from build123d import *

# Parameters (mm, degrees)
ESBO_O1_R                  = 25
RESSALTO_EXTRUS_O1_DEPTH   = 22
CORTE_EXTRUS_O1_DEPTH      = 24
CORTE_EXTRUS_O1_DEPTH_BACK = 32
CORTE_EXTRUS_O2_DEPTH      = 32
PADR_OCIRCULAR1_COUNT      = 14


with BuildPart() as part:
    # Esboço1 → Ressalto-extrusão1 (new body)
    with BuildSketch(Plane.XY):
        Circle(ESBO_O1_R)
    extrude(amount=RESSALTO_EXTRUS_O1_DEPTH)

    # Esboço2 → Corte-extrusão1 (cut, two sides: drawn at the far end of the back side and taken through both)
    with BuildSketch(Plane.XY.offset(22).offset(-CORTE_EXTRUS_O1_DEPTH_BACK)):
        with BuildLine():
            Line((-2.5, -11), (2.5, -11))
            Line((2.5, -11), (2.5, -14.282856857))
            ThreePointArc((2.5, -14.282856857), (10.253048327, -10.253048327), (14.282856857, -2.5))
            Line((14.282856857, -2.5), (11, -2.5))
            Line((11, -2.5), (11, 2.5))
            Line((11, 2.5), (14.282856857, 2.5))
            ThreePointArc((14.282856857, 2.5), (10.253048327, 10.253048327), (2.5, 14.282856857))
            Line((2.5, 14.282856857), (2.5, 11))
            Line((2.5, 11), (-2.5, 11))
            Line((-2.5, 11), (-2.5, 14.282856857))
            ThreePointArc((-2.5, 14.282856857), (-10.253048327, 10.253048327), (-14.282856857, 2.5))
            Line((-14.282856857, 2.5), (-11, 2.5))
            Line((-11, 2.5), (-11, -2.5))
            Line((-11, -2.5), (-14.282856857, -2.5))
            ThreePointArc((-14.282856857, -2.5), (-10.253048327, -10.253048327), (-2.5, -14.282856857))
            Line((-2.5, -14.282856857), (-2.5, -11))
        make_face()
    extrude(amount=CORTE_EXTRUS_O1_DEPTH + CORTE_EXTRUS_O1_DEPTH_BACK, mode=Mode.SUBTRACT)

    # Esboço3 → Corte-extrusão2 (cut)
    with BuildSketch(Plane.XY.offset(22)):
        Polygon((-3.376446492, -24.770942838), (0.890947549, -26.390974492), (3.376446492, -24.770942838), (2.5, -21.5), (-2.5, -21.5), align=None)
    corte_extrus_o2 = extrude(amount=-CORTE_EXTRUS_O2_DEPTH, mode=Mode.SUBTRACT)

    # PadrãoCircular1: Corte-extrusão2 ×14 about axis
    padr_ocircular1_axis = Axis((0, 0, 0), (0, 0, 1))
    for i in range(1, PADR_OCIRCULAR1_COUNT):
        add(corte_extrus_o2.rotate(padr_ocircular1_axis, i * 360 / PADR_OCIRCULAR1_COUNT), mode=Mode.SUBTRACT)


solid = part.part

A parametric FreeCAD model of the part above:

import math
import FreeCAD as App
import Part
import Sketcher
Q = App.Units.Quantity


def add_polygon(sketch, points):
    """Adds a closed chain of lines whose ends are joined by coincident constraints."""
    first, n = sketch.GeometryCount, len(points)
    for a, b in zip(points, points[1:] + points[:1]):
        sketch.addGeometry(Part.LineSegment(App.Vector(*a, 0), App.Vector(*b, 0)), False)
    for i in range(n):
        sketch.addConstraint(Sketcher.Constraint("Coincident", first + i, 2, first + (i + 1) % n, 1))

doc = App.newDocument("Part")
body = doc.addObject("PartDesign::Body", "Body")

# Sketch on XY plane
sketch1 = body.newObject("Sketcher::SketchObject", "Sketch")
sketch1.AttachmentSupport = (doc.getObject("XY_Plane"), [""])
sketch1.MapMode = "FlatFace"
sketch1.addGeometry(Part.Circle(App.Vector(0, 0, 0), App.Vector(0, 0, 1), 25), False)
sketch1.addConstraint(Sketcher.Constraint("Coincident", 0, 3, -1, 1))
sketch1.addConstraint(Sketcher.Constraint("Diameter", 0, 50.0))
pad1 = body.newObject("PartDesign::Pad", "Pad")
pad1.Profile = sketch1
pad1.Length = 22

# Sketch on XY plane
sketch2 = body.newObject("Sketcher::SketchObject", "Sketch001")
sketch2.AttachmentSupport = (doc.getObject("XY_Plane"), [""])
sketch2.MapMode = "FlatFace"
sketch2.AttachmentOffset = App.Placement(App.Vector(0, 0, 22), App.Rotation())
sketch2.addGeometry(Part.LineSegment(App.Vector(-2.5, -11, 0), App.Vector(2.5, -11, 0)), False)
sketch2.addGeometry(Part.LineSegment(App.Vector(2.5, -11, 0), App.Vector(2.5, -14.3, 0)), False)
sketch2.addGeometry(Part.ArcOfCircle(Part.Circle(App.Vector(0, 0, 0), App.Vector(0, 0, 1), 14.5), math.radians(-80), math.radians(-10)), False)
sketch2.addGeometry(Part.LineSegment(App.Vector(14.3, -2.5, 0), App.Vector(11, -2.5, 0)), False)
sketch2.addGeometry(Part.LineSegment(App.Vector(11, -2.5, 0), App.Vector(11, 2.5, 0)), False)
sketch2.addGeometry(Part.LineSegment(App.Vector(11, 2.5, 0), App.Vector(14.3, 2.5, 0)), False)
sketch2.addGeometry(Part.ArcOfCircle(Part.Circle(App.Vector(0, 0, 0), App.Vector(0, 0, 1), 14.5), math.radians(10), math.radians(80)), False)
sketch2.addGeometry(Part.LineSegment(App.Vector(2.5, 14.3, 0), App.Vector(2.5, 11, 0)), False)
sketch2.addGeometry(Part.LineSegment(App.Vector(2.5, 11, 0), App.Vector(-2.5, 11, 0)), False)
sketch2.addGeometry(Part.LineSegment(App.Vector(-2.5, 11, 0), App.Vector(-2.5, 14.3, 0)), False)
sketch2.addGeometry(Part.ArcOfCircle(Part.Circle(App.Vector(0, 0, 0), App.Vector(0, 0, 1), 14.5), math.radians(100), math.radians(170)), False)
sketch2.addGeometry(Part.LineSegment(App.Vector(-14.3, 2.5, 0), App.Vector(-11, 2.5, 0)), False)
sketch2.addGeometry(Part.LineSegment(App.Vector(-11, 2.5, 0), App.Vector(-11, -2.5, 0)), False)
sketch2.addGeometry(Part.LineSegment(App.Vector(-11, -2.5, 0), App.Vector(-14.3, -2.5, 0)), False)
sketch2.addGeometry(Part.ArcOfCircle(Part.Circle(App.Vector(0, 0, 0), App.Vector(0, 0, 1), 14.5), math.radians(-170), math.radians(-100)), False)
sketch2.addGeometry(Part.LineSegment(App.Vector(-2.5, -14.3, 0), App.Vector(-2.5, -11, 0)), False)
sketch2.addConstraint(Sketcher.Constraint("Coincident", 0, 2, 1, 1))
sketch2.addConstraint(Sketcher.Constraint("Coincident", 1, 2, 2, 1))
sketch2.addConstraint(Sketcher.Constraint("Coincident", 2, 2, 3, 1))
sketch2.addConstraint(Sketcher.Constraint("Coincident", 3, 2, 4, 1))
sketch2.addConstraint(Sketcher.Constraint("Coincident", 4, 2, 5, 1))
sketch2.addConstraint(Sketcher.Constraint("Coincident", 5, 2, 6, 1))
sketch2.addConstraint(Sketcher.Constraint("Coincident", 6, 2, 7, 1))
sketch2.addConstraint(Sketcher.Constraint("Coincident", 7, 2, 8, 1))
sketch2.addConstraint(Sketcher.Constraint("Coincident", 8, 2, 9, 1))
sketch2.addConstraint(Sketcher.Constraint("Coincident", 9, 2, 10, 1))
sketch2.addConstraint(Sketcher.Constraint("Coincident", 10, 2, 11, 1))
sketch2.addConstraint(Sketcher.Constraint("Coincident", 11, 2, 12, 1))
sketch2.addConstraint(Sketcher.Constraint("Coincident", 12, 2, 13, 1))
sketch2.addConstraint(Sketcher.Constraint("Coincident", 13, 2, 14, 1))
sketch2.addConstraint(Sketcher.Constraint("Coincident", 14, 2, 15, 1))
sketch2.addConstraint(Sketcher.Constraint("Coincident", 15, 2, 0, 1))
sketch2.addConstraint(Sketcher.Constraint("Horizontal", 0))
sketch2.addConstraint(Sketcher.Constraint("Vertical", 1))
sketch2.addConstraint(Sketcher.Constraint("Horizontal", 3))
sketch2.addConstraint(Sketcher.Constraint("Vertical", 4))
sketch2.addConstraint(Sketcher.Constraint("Horizontal", 5))
sketch2.addConstraint(Sketcher.Constraint("Vertical", 7))
sketch2.addConstraint(Sketcher.Constraint("Horizontal", 8))
sketch2.addConstraint(Sketcher.Constraint("Vertical", 9))
sketch2.addConstraint(Sketcher.Constraint("Horizontal", 11))
sketch2.addConstraint(Sketcher.Constraint("Vertical", 12))
sketch2.addConstraint(Sketcher.Constraint("Horizontal", 13))
sketch2.addConstraint(Sketcher.Constraint("Vertical", 15))
sketch2.addConstraint(Sketcher.Constraint("Coincident", 2, 3, -1, 1))
sketch2.addConstraint(Sketcher.Constraint("Coincident", 6, 3, -1, 1))
sketch2.addConstraint(Sketcher.Constraint("Coincident", 10, 3, -1, 1))
sketch2.addConstraint(Sketcher.Constraint("Coincident", 14, 3, -1, 1))
sketch2.addConstraint(Sketcher.Constraint("Equal", 2, 6))
sketch2.addConstraint(Sketcher.Constraint("Equal", 6, 10))
sketch2.addConstraint(Sketcher.Constraint("Equal", 10, 14))
sketch2.addConstraint(Sketcher.Constraint("Symmetric", 0, 2, 8, 2, -1, 1))
sketch2.addConstraint(Sketcher.Constraint("Symmetric", 3, 2, 11, 2, -1, 1))
sketch2.addConstraint(Sketcher.Constraint("Horizontal", 6, 2, 9, 2))
sketch2.addConstraint(Sketcher.Constraint("Horizontal", 5, 2, 10, 2))
sketch2.addConstraint(Sketcher.Constraint("Horizontal", 3, 2, 12, 2))
sketch2.addConstraint(Sketcher.Constraint("Horizontal", 1, 2, 14, 2))
sketch2.addConstraint(Sketcher.Constraint("Equal", 13, 1))
sketch2.addConstraint(Sketcher.Constraint("Equal", 8, 4))
sketch2.addConstraint(Sketcher.Constraint("Radius", 2, 14.5))
sketch2.addConstraint(Sketcher.Constraint("DistanceX", 0, 1, 0, 2, 5.0))
sketch2.addConstraint(Sketcher.Constraint("DistanceY", 0, 2, -1, 1, 11.0))
pocket1 = body.newObject("PartDesign::Pocket", "Pocket")
pocket1.Profile = sketch2
pocket1.Type = "ThroughAll"
pocket1.Midplane = True

# Sketch on XY plane
sketch3 = body.newObject("Sketcher::SketchObject", "Sketch002")
sketch3.AttachmentSupport = (doc.getObject("XY_Plane"), [""])
sketch3.MapMode = "FlatFace"
sketch3.AttachmentOffset = App.Placement(App.Vector(0, 0, 22), App.Rotation())
add_polygon(sketch3, [(-3.4, -24.8), (0.9, -26.4), (3.4, -24.8), (2.5, -21.5), (-2.5, -21.5)])  # lines 0-4
sketch3.addConstraint(Sketcher.Constraint("Horizontal", 3))
sketch3.addConstraint(Sketcher.Constraint("Symmetric", 1, 2, 4, 2, -2))
sketch3.addConstraint(Sketcher.Constraint("Equal", 2, 4))
sketch3.addConstraint(Sketcher.Constraint("DistanceX", 3, 2, 3, 1, 5.0))
sketch3.addConstraint(Sketcher.Constraint("Angle", 2, Q("105 deg")))
sketch3.addConstraint(Sketcher.Constraint("DistanceY", 2, 2, -1, 1, 21.5))
sketch3.addConstraint(Sketcher.Constraint("DistanceX", 0, 2, 1, 2, 2.485499))
sketch3.addConstraint(Sketcher.Constraint("Distance", 1, 2.966851))
sketch3.addConstraint(Sketcher.Constraint("Distance", 2, 3.386329))
pocket2 = body.newObject("PartDesign::Pocket", "Pocket001")
pocket2.Profile = sketch3
pocket2.Length = 32
doc.recompute()

polarpattern = body.newObject("PartDesign::PolarPattern", "PolarPattern")
polarpattern.Originals = [pocket2]
polarpattern.Axis = (doc.getObject("Z_Axis"), [""])
polarpattern.Angle = 360
polarpattern.Occurrences = 14
body.Tip = polarpattern

doc.recompute()
